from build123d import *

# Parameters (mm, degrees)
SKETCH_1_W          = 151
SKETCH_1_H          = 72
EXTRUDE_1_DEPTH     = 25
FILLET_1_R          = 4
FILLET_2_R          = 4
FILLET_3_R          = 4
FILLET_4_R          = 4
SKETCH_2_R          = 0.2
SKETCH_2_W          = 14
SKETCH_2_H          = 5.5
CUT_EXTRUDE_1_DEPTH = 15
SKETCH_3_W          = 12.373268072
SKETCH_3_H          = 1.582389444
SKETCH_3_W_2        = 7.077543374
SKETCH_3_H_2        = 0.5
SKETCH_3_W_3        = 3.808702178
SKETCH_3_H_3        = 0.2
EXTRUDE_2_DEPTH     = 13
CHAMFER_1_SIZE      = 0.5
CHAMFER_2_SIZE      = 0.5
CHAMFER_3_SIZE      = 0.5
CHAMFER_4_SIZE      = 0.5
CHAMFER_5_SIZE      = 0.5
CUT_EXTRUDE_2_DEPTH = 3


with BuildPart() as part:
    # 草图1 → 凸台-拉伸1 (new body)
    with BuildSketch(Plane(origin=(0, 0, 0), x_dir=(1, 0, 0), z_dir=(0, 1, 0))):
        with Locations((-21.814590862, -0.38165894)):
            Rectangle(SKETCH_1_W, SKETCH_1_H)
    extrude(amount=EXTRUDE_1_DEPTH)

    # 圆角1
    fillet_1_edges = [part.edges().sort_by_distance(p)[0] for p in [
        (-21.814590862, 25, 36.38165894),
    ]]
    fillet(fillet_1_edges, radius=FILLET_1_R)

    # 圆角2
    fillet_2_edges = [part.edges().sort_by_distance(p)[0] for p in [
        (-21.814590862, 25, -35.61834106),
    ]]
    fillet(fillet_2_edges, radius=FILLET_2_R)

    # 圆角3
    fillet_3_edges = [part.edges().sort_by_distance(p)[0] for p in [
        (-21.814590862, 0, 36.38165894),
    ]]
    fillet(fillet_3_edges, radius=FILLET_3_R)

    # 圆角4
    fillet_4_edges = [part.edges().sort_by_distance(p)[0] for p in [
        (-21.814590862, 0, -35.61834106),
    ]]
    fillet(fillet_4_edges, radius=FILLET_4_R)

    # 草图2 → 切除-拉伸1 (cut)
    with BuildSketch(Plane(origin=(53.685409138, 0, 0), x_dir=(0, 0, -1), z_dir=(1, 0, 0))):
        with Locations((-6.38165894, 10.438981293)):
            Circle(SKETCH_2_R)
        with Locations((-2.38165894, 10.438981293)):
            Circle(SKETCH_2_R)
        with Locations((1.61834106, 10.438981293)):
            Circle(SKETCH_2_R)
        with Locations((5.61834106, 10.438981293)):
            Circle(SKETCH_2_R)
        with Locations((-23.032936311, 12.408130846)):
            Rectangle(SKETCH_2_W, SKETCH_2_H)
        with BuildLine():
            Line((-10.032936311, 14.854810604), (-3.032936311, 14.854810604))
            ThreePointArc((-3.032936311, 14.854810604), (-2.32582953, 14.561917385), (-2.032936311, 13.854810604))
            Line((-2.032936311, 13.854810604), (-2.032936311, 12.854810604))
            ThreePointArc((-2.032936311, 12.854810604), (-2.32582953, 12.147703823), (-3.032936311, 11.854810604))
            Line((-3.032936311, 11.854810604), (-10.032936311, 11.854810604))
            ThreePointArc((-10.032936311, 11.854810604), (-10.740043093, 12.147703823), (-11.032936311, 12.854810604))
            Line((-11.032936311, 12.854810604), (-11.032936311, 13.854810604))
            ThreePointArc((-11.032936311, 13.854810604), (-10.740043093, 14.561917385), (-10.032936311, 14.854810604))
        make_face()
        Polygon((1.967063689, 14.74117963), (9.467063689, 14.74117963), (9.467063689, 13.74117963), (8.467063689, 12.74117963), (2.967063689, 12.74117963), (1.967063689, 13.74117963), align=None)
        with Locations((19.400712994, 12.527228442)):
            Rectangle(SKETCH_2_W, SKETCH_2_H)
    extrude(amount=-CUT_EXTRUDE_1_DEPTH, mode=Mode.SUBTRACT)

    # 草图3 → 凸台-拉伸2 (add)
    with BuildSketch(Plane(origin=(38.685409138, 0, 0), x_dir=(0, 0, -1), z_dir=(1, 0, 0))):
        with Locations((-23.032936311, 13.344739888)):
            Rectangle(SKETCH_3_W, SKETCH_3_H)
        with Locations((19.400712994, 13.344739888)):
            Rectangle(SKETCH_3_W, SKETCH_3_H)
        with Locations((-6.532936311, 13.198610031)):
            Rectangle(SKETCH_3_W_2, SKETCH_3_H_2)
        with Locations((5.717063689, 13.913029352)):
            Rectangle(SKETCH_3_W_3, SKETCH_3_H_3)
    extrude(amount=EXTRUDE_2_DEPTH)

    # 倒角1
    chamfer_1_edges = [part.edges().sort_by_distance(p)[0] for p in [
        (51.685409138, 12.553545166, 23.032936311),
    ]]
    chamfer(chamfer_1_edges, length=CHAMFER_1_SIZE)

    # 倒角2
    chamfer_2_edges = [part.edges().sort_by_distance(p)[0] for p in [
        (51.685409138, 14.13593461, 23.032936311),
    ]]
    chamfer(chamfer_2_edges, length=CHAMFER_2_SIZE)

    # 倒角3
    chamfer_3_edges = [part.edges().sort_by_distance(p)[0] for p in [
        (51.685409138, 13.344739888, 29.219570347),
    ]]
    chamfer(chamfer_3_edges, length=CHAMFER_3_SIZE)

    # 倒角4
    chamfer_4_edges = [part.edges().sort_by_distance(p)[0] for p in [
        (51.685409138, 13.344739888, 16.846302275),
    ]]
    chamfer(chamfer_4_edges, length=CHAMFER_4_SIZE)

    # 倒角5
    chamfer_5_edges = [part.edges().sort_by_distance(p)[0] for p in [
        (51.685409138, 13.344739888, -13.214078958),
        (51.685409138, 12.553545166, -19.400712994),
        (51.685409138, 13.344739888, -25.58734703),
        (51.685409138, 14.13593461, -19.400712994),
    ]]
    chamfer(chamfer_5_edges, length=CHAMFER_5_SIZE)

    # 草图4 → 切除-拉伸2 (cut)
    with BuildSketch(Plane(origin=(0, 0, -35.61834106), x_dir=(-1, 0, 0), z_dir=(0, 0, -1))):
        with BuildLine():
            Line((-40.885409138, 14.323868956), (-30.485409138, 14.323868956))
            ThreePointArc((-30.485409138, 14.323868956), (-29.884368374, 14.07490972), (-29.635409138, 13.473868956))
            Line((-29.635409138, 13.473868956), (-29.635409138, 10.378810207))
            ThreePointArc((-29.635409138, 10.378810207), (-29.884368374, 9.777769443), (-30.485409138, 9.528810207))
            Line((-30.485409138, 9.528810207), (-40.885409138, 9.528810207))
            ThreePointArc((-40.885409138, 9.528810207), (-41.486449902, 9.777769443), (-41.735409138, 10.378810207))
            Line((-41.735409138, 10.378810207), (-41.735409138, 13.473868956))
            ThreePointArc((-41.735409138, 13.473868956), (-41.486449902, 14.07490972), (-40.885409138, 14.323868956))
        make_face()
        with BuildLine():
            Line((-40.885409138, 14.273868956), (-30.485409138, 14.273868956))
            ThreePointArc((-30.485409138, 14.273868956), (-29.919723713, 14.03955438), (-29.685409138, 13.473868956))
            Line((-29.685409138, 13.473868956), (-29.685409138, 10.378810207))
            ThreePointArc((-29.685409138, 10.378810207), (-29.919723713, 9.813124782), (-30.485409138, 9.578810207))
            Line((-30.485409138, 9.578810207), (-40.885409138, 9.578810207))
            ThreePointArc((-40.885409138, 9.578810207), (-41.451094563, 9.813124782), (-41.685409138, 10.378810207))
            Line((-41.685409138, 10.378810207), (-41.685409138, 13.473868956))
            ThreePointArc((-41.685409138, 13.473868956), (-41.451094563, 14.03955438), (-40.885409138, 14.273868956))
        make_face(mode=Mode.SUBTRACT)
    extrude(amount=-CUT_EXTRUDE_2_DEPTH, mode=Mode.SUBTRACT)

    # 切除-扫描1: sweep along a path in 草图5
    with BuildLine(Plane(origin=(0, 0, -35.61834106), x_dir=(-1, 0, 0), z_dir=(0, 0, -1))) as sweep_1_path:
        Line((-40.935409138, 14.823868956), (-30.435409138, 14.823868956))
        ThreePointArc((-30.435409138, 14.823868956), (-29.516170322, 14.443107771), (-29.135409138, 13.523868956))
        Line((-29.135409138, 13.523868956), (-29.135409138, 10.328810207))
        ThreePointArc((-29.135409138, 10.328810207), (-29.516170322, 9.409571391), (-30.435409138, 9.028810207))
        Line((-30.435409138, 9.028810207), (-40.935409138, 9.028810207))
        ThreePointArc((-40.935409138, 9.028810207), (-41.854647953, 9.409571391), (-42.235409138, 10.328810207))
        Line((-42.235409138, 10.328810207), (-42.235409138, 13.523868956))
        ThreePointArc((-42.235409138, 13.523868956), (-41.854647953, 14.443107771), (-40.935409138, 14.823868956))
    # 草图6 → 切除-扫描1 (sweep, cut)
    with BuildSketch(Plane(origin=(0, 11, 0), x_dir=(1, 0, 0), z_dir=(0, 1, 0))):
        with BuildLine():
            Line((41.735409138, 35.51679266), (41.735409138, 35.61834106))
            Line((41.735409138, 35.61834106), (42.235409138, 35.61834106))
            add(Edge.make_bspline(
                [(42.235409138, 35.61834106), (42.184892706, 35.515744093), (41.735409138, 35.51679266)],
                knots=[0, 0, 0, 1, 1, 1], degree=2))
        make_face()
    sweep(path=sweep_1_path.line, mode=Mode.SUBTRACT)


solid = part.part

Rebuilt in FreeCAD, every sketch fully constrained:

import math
import FreeCAD as App
import Part
import Sketcher

V = App.Vector
Q = App.Units.Quantity


def edges_at(feature, points):
    """Names of the edges that pass closest to the given points."""
    edges = feature.Shape.Edges
    near = lambda p: min(range(len(edges)), key=lambda i: edges[i].distToShape(Part.Vertex(*p))[0])
    return sorted({f"Edge{near(p) + 1}" for p in points})


def add_polygon(sketch, points):
    """Adds a closed chain of lines whose ends are joined by coincident constraints."""
    first, n = sketch.GeometryCount, len(points)
    for a, b in zip(points, points[1:] + points[:1]):
        sketch.addGeometry(Part.LineSegment(App.Vector(*a, 0), App.Vector(*b, 0)), False)
    for i in range(n):
        sketch.addConstraint(Sketcher.Constraint("Coincident", first + i, 2, first + (i + 1) % n, 1))

doc = App.newDocument("Part")
body = doc.addObject("PartDesign::Body", "Body")

# Sketch on XZ plane
sketch1 = body.newObject("Sketcher::SketchObject", "Sketch")
sketch1.AttachmentSupport = (doc.getObject("XZ_Plane"), [""])
sketch1.MapMode = "FlatFace"
add_polygon(sketch1, [(-97, -36), (-97, 36), (54, 36), (54, -36)])  # lines 0-3
sketch1.addConstraint(Sketcher.Constraint("Vertical", 0))
sketch1.addConstraint(Sketcher.Constraint("Horizontal", 1))
sketch1.addConstraint(Sketcher.Constraint("Vertical", 2))
sketch1.addConstraint(Sketcher.Constraint("Horizontal", 3))
sketch1.addConstraint(Sketcher.Constraint("DistanceX", 1, 1, 1, 2, Q("151 mm")))
sketch1.addConstraint(Sketcher.Constraint("DistanceY", 0, 1, 0, 2, Q("72 mm")))
sketch1.addConstraint(Sketcher.Constraint("DistanceX", 0, 2, -1, 1, Q("97.314591 mm")))
sketch1.addConstraint(Sketcher.Constraint("DistanceY", -1, 1, 0, 2, Q("36.381659 mm")))
pad1 = body.newObject("PartDesign::Pad", "Pad")
pad1.Profile = sketch1
pad1.Length = 25
pad1.Reversed = True
doc.recompute()

fillet = body.newObject("PartDesign::Fillet", "Fillet")
fillet.Base = (pad1, edges_at(pad1, [(-21.815, 25, 36.382)]))
fillet.Radius = 4
doc.recompute()

fillet2 = body.newObject("PartDesign::Fillet", "Fillet001")
fillet2.Base = (fillet, edges_at(fillet, [(-21.815, 25, -35.618)]))
fillet2.Radius = 4
doc.recompute()

fillet3 = body.newObject("PartDesign::Fillet", "Fillet002")
fillet3.Base = (fillet2, edges_at(fillet2, [(-21.815, 0, 36.382)]))
fillet3.Radius = 4
doc.recompute()

fillet4 = body.newObject("PartDesign::Fillet", "Fillet003")
fillet4.Base = (fillet3, edges_at(fillet3, [(-21.815, 0, -35.618)]))
fillet4.Radius = 4

# Sketch on YZ plane
sketch2 = body.newObject("Sketcher::SketchObject", "Sketch001")
sketch2.AttachmentSupport = (doc.getObject("YZ_Plane"), [""])
sketch2.MapMode = "FlatFace"
sketch2.AttachmentOffset = App.Placement(V(0, 0, 53.685409), App.Rotation())
sketch2.addGeometry(Part.Circle(V(10.44, 6.38, 0), V(0, 0, 1), 0.2), False)  # 0
sketch2.addGeometry(Part.Circle(V(10.44, 2.38, 0), V(0, 0, 1), 0.2), False)  # 1
sketch2.addGeometry(Part.Circle(V(10.44, -1.62, 0), V(0, 0, 1), 0.2), False)  # 2
sketch2.addGeometry(Part.Circle(V(10.44, -5.62, 0), V(0, 0, 1), 0.2), False)  # 3
add_polygon(sketch2, [(15.16, 30.03), (9.66, 30.03), (9.66, 16.03), (15.16, 16.03)])  # lines 4-7
sketch2.addGeometry(Part.LineSegment(V(14.85, 3.03, 0), V(14.85, 10.03, 0)), False)  # 8
sketch2.addGeometry(Part.ArcOfCircle(Part.Circle(V(13.85, 10.03, 0), V(0, 0, 1), 1), math.radians(0), math.radians(90)), False)  # 9
sketch2.addGeometry(Part.LineSegment(V(13.85, 11.03, 0), V(12.85, 11.03, 0)), False)  # 10
sketch2.addGeometry(Part.ArcOfCircle(Part.Circle(V(12.85, 10.03, 0), V(0, 0, 1), 1), math.radians(90), math.radians(180)), False)  # 11
sketch2.addGeometry(Part.LineSegment(V(11.85, 10.03, 0), V(11.85, 3.03, 0)), False)  # 12
sketch2.addGeometry(Part.ArcOfCircle(Part.Circle(V(12.85, 3.03, 0), V(0, 0, 1), 1), math.radians(-180), math.radians(-90)), False)  # 13
sketch2.addGeometry(Part.LineSegment(V(12.85, 2.03, 0), V(13.85, 2.03, 0)), False)  # 14
sketch2.addGeometry(Part.ArcOfCircle(Part.Circle(V(13.85, 3.03, 0), V(0, 0, 1), 1), math.radians(-90), math.radians(0)), False)  # 15
add_polygon(sketch2, [(14.74, -9.47), (14.74, -1.97), (13.74, -1.97), (12.74, -2.97), (12.74, -8.47), (13.74, -9.47)])  # lines 16-21
add_polygon(sketch2, [(15.28, -12.4), (9.78, -12.4), (9.78, -26.4), (15.28, -26.4)])  # lines 22-25
sketch2.addConstraint(Sketcher.Constraint("Tangent", 8, 2, 9, 1))
sketch2.addConstraint(Sketcher.Constraint("Tangent", 9, 2, 10, 1))
sketch2.addConstraint(Sketcher.Constraint("Tangent", 10, 2, 11, 1))
sketch2.addConstraint(Sketcher.Constraint("Tangent", 11, 2, 12, 1))
sketch2.addConstraint(Sketcher.Constraint("Tangent", 12, 2, 13, 1))
sketch2.addConstraint(Sketcher.Constraint("Tangent", 13, 2, 14, 1))
sketch2.addConstraint(Sketcher.Constraint("Tangent", 14, 2, 15, 1))
sketch2.addConstraint(Sketcher.Constraint("Tangent", 15, 2, 8, 1))
sketch2.addConstraint(Sketcher.Constraint("Horizontal", 4))
sketch2.addConstraint(Sketcher.Constraint("Vertical", 5))
sketch2.addConstraint(Sketcher.Constraint("Horizontal", 6))
sketch2.addConstraint(Sketcher.Constraint("Vertical", 7))
sketch2.addConstraint(Sketcher.Constraint("Vertical", 8))
sketch2.addConstraint(Sketcher.Constraint("Horizontal", 10))
sketch2.addConstraint(Sketcher.Constraint("Vertical", 12))
sketch2.addConstraint(Sketcher.Constraint("Horizontal", 14))
sketch2.addConstraint(Sketcher.Constraint("Vertical", 16))
sketch2.addConstraint(Sketcher.Constraint("Horizontal", 17))
sketch2.addConstraint(Sketcher.Constraint("Vertical", 19))
sketch2.addConstraint(Sketcher.Constraint("Horizontal", 21))
sketch2.addConstraint(Sketcher.Constraint("Horizontal", 22))
sketch2.addConstraint(Sketcher.Constraint("Vertical", 23))
sketch2.addConstraint(Sketcher.Constraint("Horizontal", 24))
sketch2.addConstraint(Sketcher.Constraint("Vertical", 25))
sketch2.addConstraint(Sketcher.Constraint("Equal", 0, 1))
sketch2.addConstraint(Sketcher.Constraint("Equal", 1, 2))
sketch2.addConstraint(Sketcher.Constraint("Equal", 2, 3))
sketch2.addConstraint(Sketcher.Constraint("Equal", 9, 11))
sketch2.addConstraint(Sketcher.Constraint("Equal", 11, 13))
sketch2.addConstraint(Sketcher.Constraint("Equal", 13, 15))
sketch2.addConstraint(Sketcher.Constraint("Perpendicular", 18, 20))
sketch2.addConstraint(Sketcher.Constraint("Vertical", 0, 3, 1, 3))
sketch2.addConstraint(Sketcher.Constraint("Vertical", 1, 3, 2, 3))
sketch2.addConstraint(Sketcher.Constraint("Vertical", 2, 3, 3, 3))
sketch2.addConstraint(Sketcher.Constraint("Vertical", 17, 2, 20, 2))
sketch2.addConstraint(Sketcher.Constraint("Equal", 14, 17))
sketch2.addConstraint(Sketcher.Constraint("Equal", 6, 22))
sketch2.addConstraint(Sketcher.Constraint("Equal", 24, 19))
sketch2.addConstraint(Sketcher.Constraint("Equal", 7, 23))
sketch2.addConstraint(Sketcher.Constraint("Equal", 18, 20))
sketch2.addConstraint(Sketcher.Constraint("Radius", 9, Q("1 mm")))
sketch2.addConstraint(Sketcher.Constraint("Diameter", 0, Q("0.4 mm")))
sketch2.addConstraint(Sketcher.Constraint("DistanceX", 10, 2, 10, 1, Q("1 mm")))
sketch2.addConstraint(Sketcher.Constraint("DistanceY", 5, 2, 5, 1, Q("14 mm")))
sketch2.addConstraint(Sketcher.Constraint("DistanceY", 8, 1, 8, 2, Q("7 mm")))
sketch2.addConstraint(Sketcher.Constraint("DistanceX", 4, 2, 4, 1, Q("5.5 mm")))
sketch2.addConstraint(Sketcher.Constraint("DistanceY", 16, 1, 16, 2, Q("7.5 mm")))
sketch2.addConstraint(Sketcher.Constraint("DistanceY", 1, 3, 0, 3, Q("4 mm")))
sketch2.addConstraint(Sketcher.Constraint("DistanceY", 2, 3, 1, 3, Q("4 mm")))
sketch2.addConstraint(Sketcher.Constraint("DistanceY", 3, 3, 2, 3, Q("4 mm")))
sketch2.addConstraint(Sketcher.Constraint("DistanceY", 11, 3, 4, 2, Q("20 mm")))
sketch2.addConstraint(Sketcher.Constraint("DistanceY", 16, 2, 14, 2, Q("4 mm")))
sketch2.addConstraint(Sketcher.Constraint("DistanceX", 2, 3, 16, 2, Q("4.302198 mm")))
sketch2.addConstraint(Sketcher.Constraint("DistanceX", -1, 1, 0, 3, Q("10.438981 mm")))
sketch2.addConstraint(Sketcher.Constraint("DistanceY", -1, 1, 0, 3, Q("6.381659 mm")))
sketch2.addConstraint(Sketcher.Constraint("DistanceX", -1, 1, 9, 3, Q("13.854811 mm")))
sketch2.addConstraint(Sketcher.Constraint("DistanceX", -1, 1, 4, 2, Q("9.658131 mm")))
sketch2.addConstraint(Sketcher.Constraint("DistanceX", -1, 1, 22, 2, Q("9.777228 mm")))
sketch2.addConstraint(Sketcher.Constraint("DistanceY", 22, 2, 19, 2, Q("3.933649 mm")))
sketch2.addConstraint(Sketcher.Constraint("DistanceY", 22, 2, 3, 3, Q("6.782372 mm")))
pocket1 = body.newObject("PartDesign::Pocket", "Pocket")
pocket1.Profile = sketch2
pocket1.Length = 15

# Sketch on YZ plane
sketch3 = body.newObject("Sketcher::SketchObject", "Sketch002")
sketch3.AttachmentSupport = (doc.getObject("YZ_Plane"), [""])
sketch3.MapMode = "FlatFace"
sketch3.AttachmentOffset = App.Placement(V(0, 0, 38.685409), App.Rotation())
add_polygon(sketch3, [(14.14, 29.22), (12.55, 29.22), (12.55, 16.85), (14.14, 16.85)])  # lines 0-3
add_polygon(sketch3, [(14.14, -13.21), (12.55, -13.21), (12.55, -25.59), (14.14, -25.59)])  # lines 4-7
add_polygon(sketch3, [(13.45, 10.07), (12.95, 10.07), (12.95, 2.99), (13.45, 2.99)])  # lines 8-11
add_polygon(sketch3, [(14.01, -3.81), (13.81, -3.81), (13.81, -7.62), (14.01, -7.62)])  # lines 12-15
sketch3.addConstraint(Sketcher.Constraint("Horizontal", 0))
sketch3.addConstraint(Sketcher.Constraint("Vertical", 1))
sketch3.addConstraint(Sketcher.Constraint("Horizontal", 2))
sketch3.addConstraint(Sketcher.Constraint("Vertical", 3))
sketch3.addConstraint(Sketcher.Constraint("Horizontal", 4))
sketch3.addConstraint(Sketcher.Constraint("Vertical", 5))
sketch3.addConstraint(Sketcher.Constraint("Horizontal", 6))
sketch3.addConstraint(Sketcher.Constraint("Vertical", 7))
sketch3.addConstraint(Sketcher.Constraint("Horizontal", 8))
sketch3.addConstraint(Sketcher.Constraint("Vertical", 9))
sketch3.addConstraint(Sketcher.Constraint("Horizontal", 10))
sketch3.addConstraint(Sketcher.Constraint("Vertical", 11))
sketch3.addConstraint(Sketcher.Constraint("Horizontal", 12))
sketch3.addConstraint(Sketcher.Constraint("Vertical", 13))
sketch3.addConstraint(Sketcher.Constraint("Horizontal", 14))
sketch3.addConstraint(Sketcher.Constraint("Vertical", 15))
sketch3.addConstraint(Sketcher.Constraint("Vertical", 1, 2, 4, 2))
sketch3.addConstraint(Sketcher.Constraint("Vertical", 3, 2, 6, 2))
sketch3.addConstraint(Sketcher.Constraint("Equal", 3, 5))
sketch3.addConstraint(Sketcher.Constraint("DistanceX", 8, 2, 8, 1, Q("0.5 mm")))
sketch3.addConstraint(Sketcher.Constraint("DistanceX", 12, 2, 12, 1, Q("0.2 mm")))
sketch3.addConstraint(Sketcher.Constraint("DistanceX", 0, 2, 0, 1, Q("1.582389 mm")))
sketch3.addConstraint(Sketcher.Constraint("DistanceY", 1, 2, 1, 1, Q("12.373268 mm")))
sketch3.addConstraint(Sketcher.Constraint("DistanceY", 9, 2, 9, 1, Q("7.077543 mm")))
sketch3.addConstraint(Sketcher.Constraint("DistanceY", 13, 2, 13, 1, Q("3.808702 mm")))
sketch3.addConstraint(Sketcher.Constraint("DistanceY", -1, 1, 0, 2, Q("29.21957 mm")))
sketch3.addConstraint(Sketcher.Constraint("DistanceY", 4, 2, -1, 1, Q("13.214079 mm")))
sketch3.addConstraint(Sketcher.Constraint("DistanceX", -1, 1, 8, 2, Q("12.94861 mm")))
sketch3.addConstraint(Sketcher.Constraint("DistanceX", -1, 1, 12, 2, Q("13.813029 mm")))
sketch3.addConstraint(Sketcher.Constraint("DistanceY", 12, 2, 11, 2, Q("13.884421 mm")))
sketch3.addConstraint(Sketcher.Constraint("DistanceX", -1, 1, 0, 2, Q("12.553545 mm")))
sketch3.addConstraint(Sketcher.Constraint("DistanceY", -1, 1, 8, 2, Q("10.071708 mm")))
pad2 = body.newObject("PartDesign::Pad", "Pad001")
pad2.Profile = sketch3
pad2.Length = 13
doc.recompute()

chamfer = body.newObject("PartDesign::Chamfer", "Chamfer")
chamfer.Base = (pad2, edges_at(pad2, [(51.685, 12.554, 23.033)]))
chamfer.Size = 0.5
doc.recompute()

chamfer2 = body.newObject("PartDesign::Chamfer", "Chamfer001")
chamfer2.Base = (chamfer, edges_at(chamfer, [(51.685, 14.136, 23.033)]))
chamfer2.Size = 0.5
doc.recompute()

chamfer3 = body.newObject("PartDesign::Chamfer", "Chamfer002")
chamfer3.Base = (chamfer2, edges_at(chamfer2, [(51.685, 13.345, 29.22)]))
chamfer3.Size = 0.5
doc.recompute()

chamfer4 = body.newObject("PartDesign::Chamfer", "Chamfer003")
chamfer4.Base = (chamfer3, edges_at(chamfer3, [(51.685, 13.345, 16.846)]))
chamfer4.Size = 0.5
doc.recompute()

chamfer5 = body.newObject("PartDesign::Chamfer", "Chamfer004")
chamfer5.Base = (chamfer4, edges_at(chamfer4, [
    (51.685, 13.345, -13.214),
    (51.685, 12.554, -19.401),
    (51.685, 13.345, -25.587),
    (51.685, 14.136, -19.401),
]))
chamfer5.Size = 0.5

# Sketch on XY plane
sketch4 = body.newObject("Sketcher::SketchObject", "Sketch003")
sketch4.AttachmentSupport = (doc.getObject("XY_Plane"), [""])
sketch4.MapMode = "FlatFace"
sketch4.AttachmentOffset = App.Placement(V(0, 0, -35.618341), App.Rotation())
sketch4.addGeometry(Part.LineSegment(V(30.5, 14.3, 0), V(40.9, 14.3, 0)), False)
sketch4.addGeometry(Part.ArcOfCircle(Part.Circle(V(40.9, 13.5, 0), V(0, 0, 1), 0.8), math.radians(0), math.radians(90)), False)
sketch4.addGeometry(Part.LineSegment(V(41.7, 13.5, 0), V(41.7, 10.4, 0)), False)
sketch4.addGeometry(Part.ArcOfCircle(Part.Circle(V(40.9, 10.4, 0), V(0, 0, 1), 0.8), math.radians(-90), math.radians(0)), False)
sketch4.addGeometry(Part.LineSegment(V(40.9, 9.5, 0), V(30.5, 9.5, 0)), False)
sketch4.addGeometry(Part.ArcOfCircle(Part.Circle(V(30.5, 10.4, 0), V(0, 0, 1), 0.8), math.radians(180), math.radians(270)), False)
sketch4.addGeometry(Part.LineSegment(V(29.6, 10.4, 0), V(29.6, 13.5, 0)), False)
sketch4.addGeometry(Part.ArcOfCircle(Part.Circle(V(30.5, 13.5, 0), V(0, 0, 1), 0.8), math.radians(90), math.radians(180)), False)
sketch4.addGeometry(Part.LineSegment(V(40.9, 14.3, 0), V(30.5, 14.3, 0)), False)
sketch4.addGeometry(Part.ArcOfCircle(Part.Circle(V(30.5, 13.5, 0), V(0, 0, 1), 0.8), math.radians(90), math.radians(180)), False)
sketch4.addGeometry(Part.LineSegment(V(29.7, 13.5, 0), V(29.7, 10.4, 0)), False)
sketch4.addGeometry(Part.ArcOfCircle(Part.Circle(V(30.5, 10.4, 0), V(0, 0, 1), 0.8), math.radians(180), math.radians(270)), False)
sketch4.addGeometry(Part.LineSegment(V(30.5, 9.6, 0), V(40.9, 9.6, 0)), False)
sketch4.addGeometry(Part.ArcOfCircle(Part.Circle(V(40.9, 10.4, 0), V(0, 0, 1), 0.8), math.radians(-90), math.radians(0)), False)
sketch4.addGeometry(Part.LineSegment(V(41.7, 10.4, 0), V(41.7, 13.5, 0)), False)
sketch4.addGeometry(Part.ArcOfCircle(Part.Circle(V(40.9, 13.5, 0), V(0, 0, 1), 0.8), math.radians(0), math.radians(90)), False)
sketch4.addConstraint(Sketcher.Constraint("Tangent", 0, 2, 1, 2))
sketch4.addConstraint(Sketcher.Constraint("Tangent", 1, 1, 2, 1))
sketch4.addConstraint(Sketcher.Constraint("Tangent", 2, 2, 3, 2))
sketch4.addConstraint(Sketcher.Constraint("Tangent", 3, 1, 4, 1))
sketch4.addConstraint(Sketcher.Constraint("Tangent", 4, 2, 5, 2))
sketch4.addConstraint(Sketcher.Constraint("Tangent", 5, 1, 6, 1))
sketch4.addConstraint(Sketcher.Constraint("Tangent", 6, 2, 7, 2))
sketch4.addConstraint(Sketcher.Constraint("Tangent", 7, 1, 0, 1))
sketch4.addConstraint(Sketcher.Constraint("Tangent", 8, 2, 9, 1))
sketch4.addConstraint(Sketcher.Constraint("Tangent", 9, 2, 10, 1))
sketch4.addConstraint(Sketcher.Constraint("Tangent", 10, 2, 11, 1))
sketch4.addConstraint(Sketcher.Constraint("Tangent", 11, 2, 12, 1))
sketch4.addConstraint(Sketcher.Constraint("Tangent", 12, 2, 13, 1))
sketch4.addConstraint(Sketcher.Constraint("Tangent", 13, 2, 14, 1))
sketch4.addConstraint(Sketcher.Constraint("Tangent", 14, 2, 15, 1))
sketch4.addConstraint(Sketcher.Constraint("Tangent", 15, 2, 8, 1))
sketch4.addConstraint(Sketcher.Constraint("Horizontal", 0))
sketch4.addConstraint(Sketcher.Constraint("Vertical", 2))
sketch4.addConstraint(Sketcher.Constraint("Horizontal", 4))
sketch4.addConstraint(Sketcher.Constraint("Vertical", 6))
sketch4.addConstraint(Sketcher.Constraint("Horizontal", 8))
sketch4.addConstraint(Sketcher.Constraint("Vertical", 10))
sketch4.addConstraint(Sketcher.Constraint("Horizontal", 12))
sketch4.addConstraint(Sketcher.Constraint("Vertical", 14))
sketch4.addConstraint(Sketcher.Constraint("Coincident", 9, 3, 7, 3))
sketch4.addConstraint(Sketcher.Constraint("Coincident", 11, 3, 5, 3))
sketch4.addConstraint(Sketcher.Constraint("Coincident", 13, 3, 3, 3))
sketch4.addConstraint(Sketcher.Constraint("Equal", 1, 3))
sketch4.addConstraint(Sketcher.Constraint("Equal", 3, 5))
sketch4.addConstraint(Sketcher.Constraint("Equal", 5, 7))
sketch4.addConstraint(Sketcher.Constraint("Equal", 13, 15))
sketch4.addConstraint(Sketcher.Constraint("Radius", 9, Q("0.8 mm")))
sketch4.addConstraint(Sketcher.Constraint("Radius", 1, Q("0.85 mm")))
sketch4.addConstraint(Sketcher.Constraint("DistanceX", 0, 1, 0, 2, Q("10.4 mm")))
sketch4.addConstraint(Sketcher.Constraint("DistanceY", 2, 2, 2, 1, Q("3.095059 mm")))
sketch4.addConstraint(Sketcher.Constraint("DistanceX", -1, 1, 1, 3, Q("40.885409 mm")))
sketch4.addConstraint(Sketcher.Constraint("DistanceY", -1, 1, 1, 3, Q("13.473869 mm")))
pocket2 = body.newObject("PartDesign::Pocket", "Pocket001")
pocket2.Profile = sketch4
pocket2.Length = 3
pocket2.Reversed = True

# Sketch on XZ plane
sketch5 = body.newObject("Sketcher::SketchObject", "Sketch004")
sketch5.AttachmentSupport = (doc.getObject("XZ_Plane"), [""])
sketch5.MapMode = "FlatFace"
sketch5.AttachmentOffset = App.Placement(V(0, 0, -11), App.Rotation())
sketch5.addGeometry(Part.LineSegment(V(41.735409, -35.618341, 0), V(41.735409, -35.516793, 0)), False)
sketch5.addGeometry(Part.BSplineCurve([V(42.235409, -35.618341, 0), V(42.184893, -35.515744, 0), V(41.735409, -35.516793, 0)], [3, 3], [0, 1], False, 2, [1, 1, 1], False), False)
sketch5.addGeometry(Part.LineSegment(V(42.235409, -35.618341, 0), V(41.735409, -35.618341, 0)), False)
sketch5.addConstraint(Sketcher.Constraint("Block", 1))
sketch5.addConstraint(Sketcher.Constraint("Coincident", 0, 2, 1, 2))
sketch5.addConstraint(Sketcher.Constraint("Coincident", 1, 1, 2, 1))
sketch5.addConstraint(Sketcher.Constraint("Coincident", 2, 2, 0, 1))
sketch5.addConstraint(Sketcher.Constraint("Vertical", 0))
sketch5.addConstraint(Sketcher.Constraint("Horizontal", 2))

# Sketch on XY plane
sketch6 = body.newObject("Sketcher::SketchObject", "Sketch005")
sketch6.AttachmentSupport = (doc.getObject("XY_Plane"), [""])
sketch6.MapMode = "FlatFace"
sketch6.AttachmentOffset = App.Placement(V(0, 0, -35.618341), App.Rotation())
sketch6.addGeometry(Part.LineSegment(V(40.9, 14.8, 0), V(30.4, 14.8, 0)), False)
sketch6.addGeometry(Part.ArcOfCircle(Part.Circle(V(30.4, 13.5, 0), V(0, 0, 1), 1.3), math.radians(90), math.radians(180)), False)
sketch6.addGeometry(Part.LineSegment(V(29.1, 13.5, 0), V(29.1, 10.3, 0)), False)
sketch6.addGeometry(Part.ArcOfCircle(Part.Circle(V(30.4, 10.3, 0), V(0, 0, 1), 1.3), math.radians(180), math.radians(270)), False)
sketch6.addGeometry(Part.LineSegment(V(30.4, 9, 0), V(40.9, 9, 0)), False)
sketch6.addGeometry(Part.ArcOfCircle(Part.Circle(V(40.9, 10.3, 0), V(0, 0, 1), 1.3), math.radians(-90), math.radians(0)), False)
sketch6.addGeometry(Part.LineSegment(V(42.2, 10.3, 0), V(42.2, 13.5, 0)), False)
sketch6.addGeometry(Part.ArcOfCircle(Part.Circle(V(40.9, 13.5, 0), V(0, 0, 1), 1.3), math.radians(0), math.radians(90)), False)
sketch6.addConstraint(Sketcher.Constraint("Tangent", 0, 2, 1, 1))
sketch6.addConstraint(Sketcher.Constraint("Tangent", 1, 2, 2, 1))
sketch6.addConstraint(Sketcher.Constraint("Tangent", 2, 2, 3, 1))
sketch6.addConstraint(Sketcher.Constraint("Tangent", 3, 2, 4, 1))
sketch6.addConstraint(Sketcher.Constraint("Tangent", 4, 2, 5, 1))
sketch6.addConstraint(Sketcher.Constraint("Tangent", 5, 2, 6, 1))
sketch6.addConstraint(Sketcher.Constraint("Tangent", 6, 2, 7, 1))
sketch6.addConstraint(Sketcher.Constraint("Tangent", 7, 2, 0, 1))
sketch6.addConstraint(Sketcher.Constraint("Horizontal", 0))
sketch6.addConstraint(Sketcher.Constraint("Vertical", 2))
sketch6.addConstraint(Sketcher.Constraint("Horizontal", 4))
sketch6.addConstraint(Sketcher.Constraint("Vertical", 6))
sketch6.addConstraint(Sketcher.Constraint("Equal", 1, 3))
sketch6.addConstraint(Sketcher.Constraint("Equal", 3, 5))
sketch6.addConstraint(Sketcher.Constraint("Equal", 5, 7))
sketch6.addConstraint(Sketcher.Constraint("Radius", 1, Q("1.3 mm")))
sketch6.addConstraint(Sketcher.Constraint("DistanceX", 0, 2, 0, 1, Q("10.5 mm")))
sketch6.addConstraint(Sketcher.Constraint("DistanceY", 2, 2, 2, 1, Q("3.195059 mm")))
sketch6.addConstraint(Sketcher.Constraint("DistanceX", -1, 1, 1, 3, Q("30.435409 mm")))
sketch6.addConstraint(Sketcher.Constraint("DistanceY", -1, 1, 1, 3, Q("13.523869 mm")))
doc.recompute()

subtractivepipe = body.newObject("PartDesign::SubtractivePipe", "SubtractivePipe")
subtractivepipe.Profile = sketch5
subtractivepipe.Spine = (sketch6, ["Edge1", "Edge2", "Edge3", "Edge4", "Edge5", "Edge6", "Edge7", "Edge8"])

doc.recompute()
